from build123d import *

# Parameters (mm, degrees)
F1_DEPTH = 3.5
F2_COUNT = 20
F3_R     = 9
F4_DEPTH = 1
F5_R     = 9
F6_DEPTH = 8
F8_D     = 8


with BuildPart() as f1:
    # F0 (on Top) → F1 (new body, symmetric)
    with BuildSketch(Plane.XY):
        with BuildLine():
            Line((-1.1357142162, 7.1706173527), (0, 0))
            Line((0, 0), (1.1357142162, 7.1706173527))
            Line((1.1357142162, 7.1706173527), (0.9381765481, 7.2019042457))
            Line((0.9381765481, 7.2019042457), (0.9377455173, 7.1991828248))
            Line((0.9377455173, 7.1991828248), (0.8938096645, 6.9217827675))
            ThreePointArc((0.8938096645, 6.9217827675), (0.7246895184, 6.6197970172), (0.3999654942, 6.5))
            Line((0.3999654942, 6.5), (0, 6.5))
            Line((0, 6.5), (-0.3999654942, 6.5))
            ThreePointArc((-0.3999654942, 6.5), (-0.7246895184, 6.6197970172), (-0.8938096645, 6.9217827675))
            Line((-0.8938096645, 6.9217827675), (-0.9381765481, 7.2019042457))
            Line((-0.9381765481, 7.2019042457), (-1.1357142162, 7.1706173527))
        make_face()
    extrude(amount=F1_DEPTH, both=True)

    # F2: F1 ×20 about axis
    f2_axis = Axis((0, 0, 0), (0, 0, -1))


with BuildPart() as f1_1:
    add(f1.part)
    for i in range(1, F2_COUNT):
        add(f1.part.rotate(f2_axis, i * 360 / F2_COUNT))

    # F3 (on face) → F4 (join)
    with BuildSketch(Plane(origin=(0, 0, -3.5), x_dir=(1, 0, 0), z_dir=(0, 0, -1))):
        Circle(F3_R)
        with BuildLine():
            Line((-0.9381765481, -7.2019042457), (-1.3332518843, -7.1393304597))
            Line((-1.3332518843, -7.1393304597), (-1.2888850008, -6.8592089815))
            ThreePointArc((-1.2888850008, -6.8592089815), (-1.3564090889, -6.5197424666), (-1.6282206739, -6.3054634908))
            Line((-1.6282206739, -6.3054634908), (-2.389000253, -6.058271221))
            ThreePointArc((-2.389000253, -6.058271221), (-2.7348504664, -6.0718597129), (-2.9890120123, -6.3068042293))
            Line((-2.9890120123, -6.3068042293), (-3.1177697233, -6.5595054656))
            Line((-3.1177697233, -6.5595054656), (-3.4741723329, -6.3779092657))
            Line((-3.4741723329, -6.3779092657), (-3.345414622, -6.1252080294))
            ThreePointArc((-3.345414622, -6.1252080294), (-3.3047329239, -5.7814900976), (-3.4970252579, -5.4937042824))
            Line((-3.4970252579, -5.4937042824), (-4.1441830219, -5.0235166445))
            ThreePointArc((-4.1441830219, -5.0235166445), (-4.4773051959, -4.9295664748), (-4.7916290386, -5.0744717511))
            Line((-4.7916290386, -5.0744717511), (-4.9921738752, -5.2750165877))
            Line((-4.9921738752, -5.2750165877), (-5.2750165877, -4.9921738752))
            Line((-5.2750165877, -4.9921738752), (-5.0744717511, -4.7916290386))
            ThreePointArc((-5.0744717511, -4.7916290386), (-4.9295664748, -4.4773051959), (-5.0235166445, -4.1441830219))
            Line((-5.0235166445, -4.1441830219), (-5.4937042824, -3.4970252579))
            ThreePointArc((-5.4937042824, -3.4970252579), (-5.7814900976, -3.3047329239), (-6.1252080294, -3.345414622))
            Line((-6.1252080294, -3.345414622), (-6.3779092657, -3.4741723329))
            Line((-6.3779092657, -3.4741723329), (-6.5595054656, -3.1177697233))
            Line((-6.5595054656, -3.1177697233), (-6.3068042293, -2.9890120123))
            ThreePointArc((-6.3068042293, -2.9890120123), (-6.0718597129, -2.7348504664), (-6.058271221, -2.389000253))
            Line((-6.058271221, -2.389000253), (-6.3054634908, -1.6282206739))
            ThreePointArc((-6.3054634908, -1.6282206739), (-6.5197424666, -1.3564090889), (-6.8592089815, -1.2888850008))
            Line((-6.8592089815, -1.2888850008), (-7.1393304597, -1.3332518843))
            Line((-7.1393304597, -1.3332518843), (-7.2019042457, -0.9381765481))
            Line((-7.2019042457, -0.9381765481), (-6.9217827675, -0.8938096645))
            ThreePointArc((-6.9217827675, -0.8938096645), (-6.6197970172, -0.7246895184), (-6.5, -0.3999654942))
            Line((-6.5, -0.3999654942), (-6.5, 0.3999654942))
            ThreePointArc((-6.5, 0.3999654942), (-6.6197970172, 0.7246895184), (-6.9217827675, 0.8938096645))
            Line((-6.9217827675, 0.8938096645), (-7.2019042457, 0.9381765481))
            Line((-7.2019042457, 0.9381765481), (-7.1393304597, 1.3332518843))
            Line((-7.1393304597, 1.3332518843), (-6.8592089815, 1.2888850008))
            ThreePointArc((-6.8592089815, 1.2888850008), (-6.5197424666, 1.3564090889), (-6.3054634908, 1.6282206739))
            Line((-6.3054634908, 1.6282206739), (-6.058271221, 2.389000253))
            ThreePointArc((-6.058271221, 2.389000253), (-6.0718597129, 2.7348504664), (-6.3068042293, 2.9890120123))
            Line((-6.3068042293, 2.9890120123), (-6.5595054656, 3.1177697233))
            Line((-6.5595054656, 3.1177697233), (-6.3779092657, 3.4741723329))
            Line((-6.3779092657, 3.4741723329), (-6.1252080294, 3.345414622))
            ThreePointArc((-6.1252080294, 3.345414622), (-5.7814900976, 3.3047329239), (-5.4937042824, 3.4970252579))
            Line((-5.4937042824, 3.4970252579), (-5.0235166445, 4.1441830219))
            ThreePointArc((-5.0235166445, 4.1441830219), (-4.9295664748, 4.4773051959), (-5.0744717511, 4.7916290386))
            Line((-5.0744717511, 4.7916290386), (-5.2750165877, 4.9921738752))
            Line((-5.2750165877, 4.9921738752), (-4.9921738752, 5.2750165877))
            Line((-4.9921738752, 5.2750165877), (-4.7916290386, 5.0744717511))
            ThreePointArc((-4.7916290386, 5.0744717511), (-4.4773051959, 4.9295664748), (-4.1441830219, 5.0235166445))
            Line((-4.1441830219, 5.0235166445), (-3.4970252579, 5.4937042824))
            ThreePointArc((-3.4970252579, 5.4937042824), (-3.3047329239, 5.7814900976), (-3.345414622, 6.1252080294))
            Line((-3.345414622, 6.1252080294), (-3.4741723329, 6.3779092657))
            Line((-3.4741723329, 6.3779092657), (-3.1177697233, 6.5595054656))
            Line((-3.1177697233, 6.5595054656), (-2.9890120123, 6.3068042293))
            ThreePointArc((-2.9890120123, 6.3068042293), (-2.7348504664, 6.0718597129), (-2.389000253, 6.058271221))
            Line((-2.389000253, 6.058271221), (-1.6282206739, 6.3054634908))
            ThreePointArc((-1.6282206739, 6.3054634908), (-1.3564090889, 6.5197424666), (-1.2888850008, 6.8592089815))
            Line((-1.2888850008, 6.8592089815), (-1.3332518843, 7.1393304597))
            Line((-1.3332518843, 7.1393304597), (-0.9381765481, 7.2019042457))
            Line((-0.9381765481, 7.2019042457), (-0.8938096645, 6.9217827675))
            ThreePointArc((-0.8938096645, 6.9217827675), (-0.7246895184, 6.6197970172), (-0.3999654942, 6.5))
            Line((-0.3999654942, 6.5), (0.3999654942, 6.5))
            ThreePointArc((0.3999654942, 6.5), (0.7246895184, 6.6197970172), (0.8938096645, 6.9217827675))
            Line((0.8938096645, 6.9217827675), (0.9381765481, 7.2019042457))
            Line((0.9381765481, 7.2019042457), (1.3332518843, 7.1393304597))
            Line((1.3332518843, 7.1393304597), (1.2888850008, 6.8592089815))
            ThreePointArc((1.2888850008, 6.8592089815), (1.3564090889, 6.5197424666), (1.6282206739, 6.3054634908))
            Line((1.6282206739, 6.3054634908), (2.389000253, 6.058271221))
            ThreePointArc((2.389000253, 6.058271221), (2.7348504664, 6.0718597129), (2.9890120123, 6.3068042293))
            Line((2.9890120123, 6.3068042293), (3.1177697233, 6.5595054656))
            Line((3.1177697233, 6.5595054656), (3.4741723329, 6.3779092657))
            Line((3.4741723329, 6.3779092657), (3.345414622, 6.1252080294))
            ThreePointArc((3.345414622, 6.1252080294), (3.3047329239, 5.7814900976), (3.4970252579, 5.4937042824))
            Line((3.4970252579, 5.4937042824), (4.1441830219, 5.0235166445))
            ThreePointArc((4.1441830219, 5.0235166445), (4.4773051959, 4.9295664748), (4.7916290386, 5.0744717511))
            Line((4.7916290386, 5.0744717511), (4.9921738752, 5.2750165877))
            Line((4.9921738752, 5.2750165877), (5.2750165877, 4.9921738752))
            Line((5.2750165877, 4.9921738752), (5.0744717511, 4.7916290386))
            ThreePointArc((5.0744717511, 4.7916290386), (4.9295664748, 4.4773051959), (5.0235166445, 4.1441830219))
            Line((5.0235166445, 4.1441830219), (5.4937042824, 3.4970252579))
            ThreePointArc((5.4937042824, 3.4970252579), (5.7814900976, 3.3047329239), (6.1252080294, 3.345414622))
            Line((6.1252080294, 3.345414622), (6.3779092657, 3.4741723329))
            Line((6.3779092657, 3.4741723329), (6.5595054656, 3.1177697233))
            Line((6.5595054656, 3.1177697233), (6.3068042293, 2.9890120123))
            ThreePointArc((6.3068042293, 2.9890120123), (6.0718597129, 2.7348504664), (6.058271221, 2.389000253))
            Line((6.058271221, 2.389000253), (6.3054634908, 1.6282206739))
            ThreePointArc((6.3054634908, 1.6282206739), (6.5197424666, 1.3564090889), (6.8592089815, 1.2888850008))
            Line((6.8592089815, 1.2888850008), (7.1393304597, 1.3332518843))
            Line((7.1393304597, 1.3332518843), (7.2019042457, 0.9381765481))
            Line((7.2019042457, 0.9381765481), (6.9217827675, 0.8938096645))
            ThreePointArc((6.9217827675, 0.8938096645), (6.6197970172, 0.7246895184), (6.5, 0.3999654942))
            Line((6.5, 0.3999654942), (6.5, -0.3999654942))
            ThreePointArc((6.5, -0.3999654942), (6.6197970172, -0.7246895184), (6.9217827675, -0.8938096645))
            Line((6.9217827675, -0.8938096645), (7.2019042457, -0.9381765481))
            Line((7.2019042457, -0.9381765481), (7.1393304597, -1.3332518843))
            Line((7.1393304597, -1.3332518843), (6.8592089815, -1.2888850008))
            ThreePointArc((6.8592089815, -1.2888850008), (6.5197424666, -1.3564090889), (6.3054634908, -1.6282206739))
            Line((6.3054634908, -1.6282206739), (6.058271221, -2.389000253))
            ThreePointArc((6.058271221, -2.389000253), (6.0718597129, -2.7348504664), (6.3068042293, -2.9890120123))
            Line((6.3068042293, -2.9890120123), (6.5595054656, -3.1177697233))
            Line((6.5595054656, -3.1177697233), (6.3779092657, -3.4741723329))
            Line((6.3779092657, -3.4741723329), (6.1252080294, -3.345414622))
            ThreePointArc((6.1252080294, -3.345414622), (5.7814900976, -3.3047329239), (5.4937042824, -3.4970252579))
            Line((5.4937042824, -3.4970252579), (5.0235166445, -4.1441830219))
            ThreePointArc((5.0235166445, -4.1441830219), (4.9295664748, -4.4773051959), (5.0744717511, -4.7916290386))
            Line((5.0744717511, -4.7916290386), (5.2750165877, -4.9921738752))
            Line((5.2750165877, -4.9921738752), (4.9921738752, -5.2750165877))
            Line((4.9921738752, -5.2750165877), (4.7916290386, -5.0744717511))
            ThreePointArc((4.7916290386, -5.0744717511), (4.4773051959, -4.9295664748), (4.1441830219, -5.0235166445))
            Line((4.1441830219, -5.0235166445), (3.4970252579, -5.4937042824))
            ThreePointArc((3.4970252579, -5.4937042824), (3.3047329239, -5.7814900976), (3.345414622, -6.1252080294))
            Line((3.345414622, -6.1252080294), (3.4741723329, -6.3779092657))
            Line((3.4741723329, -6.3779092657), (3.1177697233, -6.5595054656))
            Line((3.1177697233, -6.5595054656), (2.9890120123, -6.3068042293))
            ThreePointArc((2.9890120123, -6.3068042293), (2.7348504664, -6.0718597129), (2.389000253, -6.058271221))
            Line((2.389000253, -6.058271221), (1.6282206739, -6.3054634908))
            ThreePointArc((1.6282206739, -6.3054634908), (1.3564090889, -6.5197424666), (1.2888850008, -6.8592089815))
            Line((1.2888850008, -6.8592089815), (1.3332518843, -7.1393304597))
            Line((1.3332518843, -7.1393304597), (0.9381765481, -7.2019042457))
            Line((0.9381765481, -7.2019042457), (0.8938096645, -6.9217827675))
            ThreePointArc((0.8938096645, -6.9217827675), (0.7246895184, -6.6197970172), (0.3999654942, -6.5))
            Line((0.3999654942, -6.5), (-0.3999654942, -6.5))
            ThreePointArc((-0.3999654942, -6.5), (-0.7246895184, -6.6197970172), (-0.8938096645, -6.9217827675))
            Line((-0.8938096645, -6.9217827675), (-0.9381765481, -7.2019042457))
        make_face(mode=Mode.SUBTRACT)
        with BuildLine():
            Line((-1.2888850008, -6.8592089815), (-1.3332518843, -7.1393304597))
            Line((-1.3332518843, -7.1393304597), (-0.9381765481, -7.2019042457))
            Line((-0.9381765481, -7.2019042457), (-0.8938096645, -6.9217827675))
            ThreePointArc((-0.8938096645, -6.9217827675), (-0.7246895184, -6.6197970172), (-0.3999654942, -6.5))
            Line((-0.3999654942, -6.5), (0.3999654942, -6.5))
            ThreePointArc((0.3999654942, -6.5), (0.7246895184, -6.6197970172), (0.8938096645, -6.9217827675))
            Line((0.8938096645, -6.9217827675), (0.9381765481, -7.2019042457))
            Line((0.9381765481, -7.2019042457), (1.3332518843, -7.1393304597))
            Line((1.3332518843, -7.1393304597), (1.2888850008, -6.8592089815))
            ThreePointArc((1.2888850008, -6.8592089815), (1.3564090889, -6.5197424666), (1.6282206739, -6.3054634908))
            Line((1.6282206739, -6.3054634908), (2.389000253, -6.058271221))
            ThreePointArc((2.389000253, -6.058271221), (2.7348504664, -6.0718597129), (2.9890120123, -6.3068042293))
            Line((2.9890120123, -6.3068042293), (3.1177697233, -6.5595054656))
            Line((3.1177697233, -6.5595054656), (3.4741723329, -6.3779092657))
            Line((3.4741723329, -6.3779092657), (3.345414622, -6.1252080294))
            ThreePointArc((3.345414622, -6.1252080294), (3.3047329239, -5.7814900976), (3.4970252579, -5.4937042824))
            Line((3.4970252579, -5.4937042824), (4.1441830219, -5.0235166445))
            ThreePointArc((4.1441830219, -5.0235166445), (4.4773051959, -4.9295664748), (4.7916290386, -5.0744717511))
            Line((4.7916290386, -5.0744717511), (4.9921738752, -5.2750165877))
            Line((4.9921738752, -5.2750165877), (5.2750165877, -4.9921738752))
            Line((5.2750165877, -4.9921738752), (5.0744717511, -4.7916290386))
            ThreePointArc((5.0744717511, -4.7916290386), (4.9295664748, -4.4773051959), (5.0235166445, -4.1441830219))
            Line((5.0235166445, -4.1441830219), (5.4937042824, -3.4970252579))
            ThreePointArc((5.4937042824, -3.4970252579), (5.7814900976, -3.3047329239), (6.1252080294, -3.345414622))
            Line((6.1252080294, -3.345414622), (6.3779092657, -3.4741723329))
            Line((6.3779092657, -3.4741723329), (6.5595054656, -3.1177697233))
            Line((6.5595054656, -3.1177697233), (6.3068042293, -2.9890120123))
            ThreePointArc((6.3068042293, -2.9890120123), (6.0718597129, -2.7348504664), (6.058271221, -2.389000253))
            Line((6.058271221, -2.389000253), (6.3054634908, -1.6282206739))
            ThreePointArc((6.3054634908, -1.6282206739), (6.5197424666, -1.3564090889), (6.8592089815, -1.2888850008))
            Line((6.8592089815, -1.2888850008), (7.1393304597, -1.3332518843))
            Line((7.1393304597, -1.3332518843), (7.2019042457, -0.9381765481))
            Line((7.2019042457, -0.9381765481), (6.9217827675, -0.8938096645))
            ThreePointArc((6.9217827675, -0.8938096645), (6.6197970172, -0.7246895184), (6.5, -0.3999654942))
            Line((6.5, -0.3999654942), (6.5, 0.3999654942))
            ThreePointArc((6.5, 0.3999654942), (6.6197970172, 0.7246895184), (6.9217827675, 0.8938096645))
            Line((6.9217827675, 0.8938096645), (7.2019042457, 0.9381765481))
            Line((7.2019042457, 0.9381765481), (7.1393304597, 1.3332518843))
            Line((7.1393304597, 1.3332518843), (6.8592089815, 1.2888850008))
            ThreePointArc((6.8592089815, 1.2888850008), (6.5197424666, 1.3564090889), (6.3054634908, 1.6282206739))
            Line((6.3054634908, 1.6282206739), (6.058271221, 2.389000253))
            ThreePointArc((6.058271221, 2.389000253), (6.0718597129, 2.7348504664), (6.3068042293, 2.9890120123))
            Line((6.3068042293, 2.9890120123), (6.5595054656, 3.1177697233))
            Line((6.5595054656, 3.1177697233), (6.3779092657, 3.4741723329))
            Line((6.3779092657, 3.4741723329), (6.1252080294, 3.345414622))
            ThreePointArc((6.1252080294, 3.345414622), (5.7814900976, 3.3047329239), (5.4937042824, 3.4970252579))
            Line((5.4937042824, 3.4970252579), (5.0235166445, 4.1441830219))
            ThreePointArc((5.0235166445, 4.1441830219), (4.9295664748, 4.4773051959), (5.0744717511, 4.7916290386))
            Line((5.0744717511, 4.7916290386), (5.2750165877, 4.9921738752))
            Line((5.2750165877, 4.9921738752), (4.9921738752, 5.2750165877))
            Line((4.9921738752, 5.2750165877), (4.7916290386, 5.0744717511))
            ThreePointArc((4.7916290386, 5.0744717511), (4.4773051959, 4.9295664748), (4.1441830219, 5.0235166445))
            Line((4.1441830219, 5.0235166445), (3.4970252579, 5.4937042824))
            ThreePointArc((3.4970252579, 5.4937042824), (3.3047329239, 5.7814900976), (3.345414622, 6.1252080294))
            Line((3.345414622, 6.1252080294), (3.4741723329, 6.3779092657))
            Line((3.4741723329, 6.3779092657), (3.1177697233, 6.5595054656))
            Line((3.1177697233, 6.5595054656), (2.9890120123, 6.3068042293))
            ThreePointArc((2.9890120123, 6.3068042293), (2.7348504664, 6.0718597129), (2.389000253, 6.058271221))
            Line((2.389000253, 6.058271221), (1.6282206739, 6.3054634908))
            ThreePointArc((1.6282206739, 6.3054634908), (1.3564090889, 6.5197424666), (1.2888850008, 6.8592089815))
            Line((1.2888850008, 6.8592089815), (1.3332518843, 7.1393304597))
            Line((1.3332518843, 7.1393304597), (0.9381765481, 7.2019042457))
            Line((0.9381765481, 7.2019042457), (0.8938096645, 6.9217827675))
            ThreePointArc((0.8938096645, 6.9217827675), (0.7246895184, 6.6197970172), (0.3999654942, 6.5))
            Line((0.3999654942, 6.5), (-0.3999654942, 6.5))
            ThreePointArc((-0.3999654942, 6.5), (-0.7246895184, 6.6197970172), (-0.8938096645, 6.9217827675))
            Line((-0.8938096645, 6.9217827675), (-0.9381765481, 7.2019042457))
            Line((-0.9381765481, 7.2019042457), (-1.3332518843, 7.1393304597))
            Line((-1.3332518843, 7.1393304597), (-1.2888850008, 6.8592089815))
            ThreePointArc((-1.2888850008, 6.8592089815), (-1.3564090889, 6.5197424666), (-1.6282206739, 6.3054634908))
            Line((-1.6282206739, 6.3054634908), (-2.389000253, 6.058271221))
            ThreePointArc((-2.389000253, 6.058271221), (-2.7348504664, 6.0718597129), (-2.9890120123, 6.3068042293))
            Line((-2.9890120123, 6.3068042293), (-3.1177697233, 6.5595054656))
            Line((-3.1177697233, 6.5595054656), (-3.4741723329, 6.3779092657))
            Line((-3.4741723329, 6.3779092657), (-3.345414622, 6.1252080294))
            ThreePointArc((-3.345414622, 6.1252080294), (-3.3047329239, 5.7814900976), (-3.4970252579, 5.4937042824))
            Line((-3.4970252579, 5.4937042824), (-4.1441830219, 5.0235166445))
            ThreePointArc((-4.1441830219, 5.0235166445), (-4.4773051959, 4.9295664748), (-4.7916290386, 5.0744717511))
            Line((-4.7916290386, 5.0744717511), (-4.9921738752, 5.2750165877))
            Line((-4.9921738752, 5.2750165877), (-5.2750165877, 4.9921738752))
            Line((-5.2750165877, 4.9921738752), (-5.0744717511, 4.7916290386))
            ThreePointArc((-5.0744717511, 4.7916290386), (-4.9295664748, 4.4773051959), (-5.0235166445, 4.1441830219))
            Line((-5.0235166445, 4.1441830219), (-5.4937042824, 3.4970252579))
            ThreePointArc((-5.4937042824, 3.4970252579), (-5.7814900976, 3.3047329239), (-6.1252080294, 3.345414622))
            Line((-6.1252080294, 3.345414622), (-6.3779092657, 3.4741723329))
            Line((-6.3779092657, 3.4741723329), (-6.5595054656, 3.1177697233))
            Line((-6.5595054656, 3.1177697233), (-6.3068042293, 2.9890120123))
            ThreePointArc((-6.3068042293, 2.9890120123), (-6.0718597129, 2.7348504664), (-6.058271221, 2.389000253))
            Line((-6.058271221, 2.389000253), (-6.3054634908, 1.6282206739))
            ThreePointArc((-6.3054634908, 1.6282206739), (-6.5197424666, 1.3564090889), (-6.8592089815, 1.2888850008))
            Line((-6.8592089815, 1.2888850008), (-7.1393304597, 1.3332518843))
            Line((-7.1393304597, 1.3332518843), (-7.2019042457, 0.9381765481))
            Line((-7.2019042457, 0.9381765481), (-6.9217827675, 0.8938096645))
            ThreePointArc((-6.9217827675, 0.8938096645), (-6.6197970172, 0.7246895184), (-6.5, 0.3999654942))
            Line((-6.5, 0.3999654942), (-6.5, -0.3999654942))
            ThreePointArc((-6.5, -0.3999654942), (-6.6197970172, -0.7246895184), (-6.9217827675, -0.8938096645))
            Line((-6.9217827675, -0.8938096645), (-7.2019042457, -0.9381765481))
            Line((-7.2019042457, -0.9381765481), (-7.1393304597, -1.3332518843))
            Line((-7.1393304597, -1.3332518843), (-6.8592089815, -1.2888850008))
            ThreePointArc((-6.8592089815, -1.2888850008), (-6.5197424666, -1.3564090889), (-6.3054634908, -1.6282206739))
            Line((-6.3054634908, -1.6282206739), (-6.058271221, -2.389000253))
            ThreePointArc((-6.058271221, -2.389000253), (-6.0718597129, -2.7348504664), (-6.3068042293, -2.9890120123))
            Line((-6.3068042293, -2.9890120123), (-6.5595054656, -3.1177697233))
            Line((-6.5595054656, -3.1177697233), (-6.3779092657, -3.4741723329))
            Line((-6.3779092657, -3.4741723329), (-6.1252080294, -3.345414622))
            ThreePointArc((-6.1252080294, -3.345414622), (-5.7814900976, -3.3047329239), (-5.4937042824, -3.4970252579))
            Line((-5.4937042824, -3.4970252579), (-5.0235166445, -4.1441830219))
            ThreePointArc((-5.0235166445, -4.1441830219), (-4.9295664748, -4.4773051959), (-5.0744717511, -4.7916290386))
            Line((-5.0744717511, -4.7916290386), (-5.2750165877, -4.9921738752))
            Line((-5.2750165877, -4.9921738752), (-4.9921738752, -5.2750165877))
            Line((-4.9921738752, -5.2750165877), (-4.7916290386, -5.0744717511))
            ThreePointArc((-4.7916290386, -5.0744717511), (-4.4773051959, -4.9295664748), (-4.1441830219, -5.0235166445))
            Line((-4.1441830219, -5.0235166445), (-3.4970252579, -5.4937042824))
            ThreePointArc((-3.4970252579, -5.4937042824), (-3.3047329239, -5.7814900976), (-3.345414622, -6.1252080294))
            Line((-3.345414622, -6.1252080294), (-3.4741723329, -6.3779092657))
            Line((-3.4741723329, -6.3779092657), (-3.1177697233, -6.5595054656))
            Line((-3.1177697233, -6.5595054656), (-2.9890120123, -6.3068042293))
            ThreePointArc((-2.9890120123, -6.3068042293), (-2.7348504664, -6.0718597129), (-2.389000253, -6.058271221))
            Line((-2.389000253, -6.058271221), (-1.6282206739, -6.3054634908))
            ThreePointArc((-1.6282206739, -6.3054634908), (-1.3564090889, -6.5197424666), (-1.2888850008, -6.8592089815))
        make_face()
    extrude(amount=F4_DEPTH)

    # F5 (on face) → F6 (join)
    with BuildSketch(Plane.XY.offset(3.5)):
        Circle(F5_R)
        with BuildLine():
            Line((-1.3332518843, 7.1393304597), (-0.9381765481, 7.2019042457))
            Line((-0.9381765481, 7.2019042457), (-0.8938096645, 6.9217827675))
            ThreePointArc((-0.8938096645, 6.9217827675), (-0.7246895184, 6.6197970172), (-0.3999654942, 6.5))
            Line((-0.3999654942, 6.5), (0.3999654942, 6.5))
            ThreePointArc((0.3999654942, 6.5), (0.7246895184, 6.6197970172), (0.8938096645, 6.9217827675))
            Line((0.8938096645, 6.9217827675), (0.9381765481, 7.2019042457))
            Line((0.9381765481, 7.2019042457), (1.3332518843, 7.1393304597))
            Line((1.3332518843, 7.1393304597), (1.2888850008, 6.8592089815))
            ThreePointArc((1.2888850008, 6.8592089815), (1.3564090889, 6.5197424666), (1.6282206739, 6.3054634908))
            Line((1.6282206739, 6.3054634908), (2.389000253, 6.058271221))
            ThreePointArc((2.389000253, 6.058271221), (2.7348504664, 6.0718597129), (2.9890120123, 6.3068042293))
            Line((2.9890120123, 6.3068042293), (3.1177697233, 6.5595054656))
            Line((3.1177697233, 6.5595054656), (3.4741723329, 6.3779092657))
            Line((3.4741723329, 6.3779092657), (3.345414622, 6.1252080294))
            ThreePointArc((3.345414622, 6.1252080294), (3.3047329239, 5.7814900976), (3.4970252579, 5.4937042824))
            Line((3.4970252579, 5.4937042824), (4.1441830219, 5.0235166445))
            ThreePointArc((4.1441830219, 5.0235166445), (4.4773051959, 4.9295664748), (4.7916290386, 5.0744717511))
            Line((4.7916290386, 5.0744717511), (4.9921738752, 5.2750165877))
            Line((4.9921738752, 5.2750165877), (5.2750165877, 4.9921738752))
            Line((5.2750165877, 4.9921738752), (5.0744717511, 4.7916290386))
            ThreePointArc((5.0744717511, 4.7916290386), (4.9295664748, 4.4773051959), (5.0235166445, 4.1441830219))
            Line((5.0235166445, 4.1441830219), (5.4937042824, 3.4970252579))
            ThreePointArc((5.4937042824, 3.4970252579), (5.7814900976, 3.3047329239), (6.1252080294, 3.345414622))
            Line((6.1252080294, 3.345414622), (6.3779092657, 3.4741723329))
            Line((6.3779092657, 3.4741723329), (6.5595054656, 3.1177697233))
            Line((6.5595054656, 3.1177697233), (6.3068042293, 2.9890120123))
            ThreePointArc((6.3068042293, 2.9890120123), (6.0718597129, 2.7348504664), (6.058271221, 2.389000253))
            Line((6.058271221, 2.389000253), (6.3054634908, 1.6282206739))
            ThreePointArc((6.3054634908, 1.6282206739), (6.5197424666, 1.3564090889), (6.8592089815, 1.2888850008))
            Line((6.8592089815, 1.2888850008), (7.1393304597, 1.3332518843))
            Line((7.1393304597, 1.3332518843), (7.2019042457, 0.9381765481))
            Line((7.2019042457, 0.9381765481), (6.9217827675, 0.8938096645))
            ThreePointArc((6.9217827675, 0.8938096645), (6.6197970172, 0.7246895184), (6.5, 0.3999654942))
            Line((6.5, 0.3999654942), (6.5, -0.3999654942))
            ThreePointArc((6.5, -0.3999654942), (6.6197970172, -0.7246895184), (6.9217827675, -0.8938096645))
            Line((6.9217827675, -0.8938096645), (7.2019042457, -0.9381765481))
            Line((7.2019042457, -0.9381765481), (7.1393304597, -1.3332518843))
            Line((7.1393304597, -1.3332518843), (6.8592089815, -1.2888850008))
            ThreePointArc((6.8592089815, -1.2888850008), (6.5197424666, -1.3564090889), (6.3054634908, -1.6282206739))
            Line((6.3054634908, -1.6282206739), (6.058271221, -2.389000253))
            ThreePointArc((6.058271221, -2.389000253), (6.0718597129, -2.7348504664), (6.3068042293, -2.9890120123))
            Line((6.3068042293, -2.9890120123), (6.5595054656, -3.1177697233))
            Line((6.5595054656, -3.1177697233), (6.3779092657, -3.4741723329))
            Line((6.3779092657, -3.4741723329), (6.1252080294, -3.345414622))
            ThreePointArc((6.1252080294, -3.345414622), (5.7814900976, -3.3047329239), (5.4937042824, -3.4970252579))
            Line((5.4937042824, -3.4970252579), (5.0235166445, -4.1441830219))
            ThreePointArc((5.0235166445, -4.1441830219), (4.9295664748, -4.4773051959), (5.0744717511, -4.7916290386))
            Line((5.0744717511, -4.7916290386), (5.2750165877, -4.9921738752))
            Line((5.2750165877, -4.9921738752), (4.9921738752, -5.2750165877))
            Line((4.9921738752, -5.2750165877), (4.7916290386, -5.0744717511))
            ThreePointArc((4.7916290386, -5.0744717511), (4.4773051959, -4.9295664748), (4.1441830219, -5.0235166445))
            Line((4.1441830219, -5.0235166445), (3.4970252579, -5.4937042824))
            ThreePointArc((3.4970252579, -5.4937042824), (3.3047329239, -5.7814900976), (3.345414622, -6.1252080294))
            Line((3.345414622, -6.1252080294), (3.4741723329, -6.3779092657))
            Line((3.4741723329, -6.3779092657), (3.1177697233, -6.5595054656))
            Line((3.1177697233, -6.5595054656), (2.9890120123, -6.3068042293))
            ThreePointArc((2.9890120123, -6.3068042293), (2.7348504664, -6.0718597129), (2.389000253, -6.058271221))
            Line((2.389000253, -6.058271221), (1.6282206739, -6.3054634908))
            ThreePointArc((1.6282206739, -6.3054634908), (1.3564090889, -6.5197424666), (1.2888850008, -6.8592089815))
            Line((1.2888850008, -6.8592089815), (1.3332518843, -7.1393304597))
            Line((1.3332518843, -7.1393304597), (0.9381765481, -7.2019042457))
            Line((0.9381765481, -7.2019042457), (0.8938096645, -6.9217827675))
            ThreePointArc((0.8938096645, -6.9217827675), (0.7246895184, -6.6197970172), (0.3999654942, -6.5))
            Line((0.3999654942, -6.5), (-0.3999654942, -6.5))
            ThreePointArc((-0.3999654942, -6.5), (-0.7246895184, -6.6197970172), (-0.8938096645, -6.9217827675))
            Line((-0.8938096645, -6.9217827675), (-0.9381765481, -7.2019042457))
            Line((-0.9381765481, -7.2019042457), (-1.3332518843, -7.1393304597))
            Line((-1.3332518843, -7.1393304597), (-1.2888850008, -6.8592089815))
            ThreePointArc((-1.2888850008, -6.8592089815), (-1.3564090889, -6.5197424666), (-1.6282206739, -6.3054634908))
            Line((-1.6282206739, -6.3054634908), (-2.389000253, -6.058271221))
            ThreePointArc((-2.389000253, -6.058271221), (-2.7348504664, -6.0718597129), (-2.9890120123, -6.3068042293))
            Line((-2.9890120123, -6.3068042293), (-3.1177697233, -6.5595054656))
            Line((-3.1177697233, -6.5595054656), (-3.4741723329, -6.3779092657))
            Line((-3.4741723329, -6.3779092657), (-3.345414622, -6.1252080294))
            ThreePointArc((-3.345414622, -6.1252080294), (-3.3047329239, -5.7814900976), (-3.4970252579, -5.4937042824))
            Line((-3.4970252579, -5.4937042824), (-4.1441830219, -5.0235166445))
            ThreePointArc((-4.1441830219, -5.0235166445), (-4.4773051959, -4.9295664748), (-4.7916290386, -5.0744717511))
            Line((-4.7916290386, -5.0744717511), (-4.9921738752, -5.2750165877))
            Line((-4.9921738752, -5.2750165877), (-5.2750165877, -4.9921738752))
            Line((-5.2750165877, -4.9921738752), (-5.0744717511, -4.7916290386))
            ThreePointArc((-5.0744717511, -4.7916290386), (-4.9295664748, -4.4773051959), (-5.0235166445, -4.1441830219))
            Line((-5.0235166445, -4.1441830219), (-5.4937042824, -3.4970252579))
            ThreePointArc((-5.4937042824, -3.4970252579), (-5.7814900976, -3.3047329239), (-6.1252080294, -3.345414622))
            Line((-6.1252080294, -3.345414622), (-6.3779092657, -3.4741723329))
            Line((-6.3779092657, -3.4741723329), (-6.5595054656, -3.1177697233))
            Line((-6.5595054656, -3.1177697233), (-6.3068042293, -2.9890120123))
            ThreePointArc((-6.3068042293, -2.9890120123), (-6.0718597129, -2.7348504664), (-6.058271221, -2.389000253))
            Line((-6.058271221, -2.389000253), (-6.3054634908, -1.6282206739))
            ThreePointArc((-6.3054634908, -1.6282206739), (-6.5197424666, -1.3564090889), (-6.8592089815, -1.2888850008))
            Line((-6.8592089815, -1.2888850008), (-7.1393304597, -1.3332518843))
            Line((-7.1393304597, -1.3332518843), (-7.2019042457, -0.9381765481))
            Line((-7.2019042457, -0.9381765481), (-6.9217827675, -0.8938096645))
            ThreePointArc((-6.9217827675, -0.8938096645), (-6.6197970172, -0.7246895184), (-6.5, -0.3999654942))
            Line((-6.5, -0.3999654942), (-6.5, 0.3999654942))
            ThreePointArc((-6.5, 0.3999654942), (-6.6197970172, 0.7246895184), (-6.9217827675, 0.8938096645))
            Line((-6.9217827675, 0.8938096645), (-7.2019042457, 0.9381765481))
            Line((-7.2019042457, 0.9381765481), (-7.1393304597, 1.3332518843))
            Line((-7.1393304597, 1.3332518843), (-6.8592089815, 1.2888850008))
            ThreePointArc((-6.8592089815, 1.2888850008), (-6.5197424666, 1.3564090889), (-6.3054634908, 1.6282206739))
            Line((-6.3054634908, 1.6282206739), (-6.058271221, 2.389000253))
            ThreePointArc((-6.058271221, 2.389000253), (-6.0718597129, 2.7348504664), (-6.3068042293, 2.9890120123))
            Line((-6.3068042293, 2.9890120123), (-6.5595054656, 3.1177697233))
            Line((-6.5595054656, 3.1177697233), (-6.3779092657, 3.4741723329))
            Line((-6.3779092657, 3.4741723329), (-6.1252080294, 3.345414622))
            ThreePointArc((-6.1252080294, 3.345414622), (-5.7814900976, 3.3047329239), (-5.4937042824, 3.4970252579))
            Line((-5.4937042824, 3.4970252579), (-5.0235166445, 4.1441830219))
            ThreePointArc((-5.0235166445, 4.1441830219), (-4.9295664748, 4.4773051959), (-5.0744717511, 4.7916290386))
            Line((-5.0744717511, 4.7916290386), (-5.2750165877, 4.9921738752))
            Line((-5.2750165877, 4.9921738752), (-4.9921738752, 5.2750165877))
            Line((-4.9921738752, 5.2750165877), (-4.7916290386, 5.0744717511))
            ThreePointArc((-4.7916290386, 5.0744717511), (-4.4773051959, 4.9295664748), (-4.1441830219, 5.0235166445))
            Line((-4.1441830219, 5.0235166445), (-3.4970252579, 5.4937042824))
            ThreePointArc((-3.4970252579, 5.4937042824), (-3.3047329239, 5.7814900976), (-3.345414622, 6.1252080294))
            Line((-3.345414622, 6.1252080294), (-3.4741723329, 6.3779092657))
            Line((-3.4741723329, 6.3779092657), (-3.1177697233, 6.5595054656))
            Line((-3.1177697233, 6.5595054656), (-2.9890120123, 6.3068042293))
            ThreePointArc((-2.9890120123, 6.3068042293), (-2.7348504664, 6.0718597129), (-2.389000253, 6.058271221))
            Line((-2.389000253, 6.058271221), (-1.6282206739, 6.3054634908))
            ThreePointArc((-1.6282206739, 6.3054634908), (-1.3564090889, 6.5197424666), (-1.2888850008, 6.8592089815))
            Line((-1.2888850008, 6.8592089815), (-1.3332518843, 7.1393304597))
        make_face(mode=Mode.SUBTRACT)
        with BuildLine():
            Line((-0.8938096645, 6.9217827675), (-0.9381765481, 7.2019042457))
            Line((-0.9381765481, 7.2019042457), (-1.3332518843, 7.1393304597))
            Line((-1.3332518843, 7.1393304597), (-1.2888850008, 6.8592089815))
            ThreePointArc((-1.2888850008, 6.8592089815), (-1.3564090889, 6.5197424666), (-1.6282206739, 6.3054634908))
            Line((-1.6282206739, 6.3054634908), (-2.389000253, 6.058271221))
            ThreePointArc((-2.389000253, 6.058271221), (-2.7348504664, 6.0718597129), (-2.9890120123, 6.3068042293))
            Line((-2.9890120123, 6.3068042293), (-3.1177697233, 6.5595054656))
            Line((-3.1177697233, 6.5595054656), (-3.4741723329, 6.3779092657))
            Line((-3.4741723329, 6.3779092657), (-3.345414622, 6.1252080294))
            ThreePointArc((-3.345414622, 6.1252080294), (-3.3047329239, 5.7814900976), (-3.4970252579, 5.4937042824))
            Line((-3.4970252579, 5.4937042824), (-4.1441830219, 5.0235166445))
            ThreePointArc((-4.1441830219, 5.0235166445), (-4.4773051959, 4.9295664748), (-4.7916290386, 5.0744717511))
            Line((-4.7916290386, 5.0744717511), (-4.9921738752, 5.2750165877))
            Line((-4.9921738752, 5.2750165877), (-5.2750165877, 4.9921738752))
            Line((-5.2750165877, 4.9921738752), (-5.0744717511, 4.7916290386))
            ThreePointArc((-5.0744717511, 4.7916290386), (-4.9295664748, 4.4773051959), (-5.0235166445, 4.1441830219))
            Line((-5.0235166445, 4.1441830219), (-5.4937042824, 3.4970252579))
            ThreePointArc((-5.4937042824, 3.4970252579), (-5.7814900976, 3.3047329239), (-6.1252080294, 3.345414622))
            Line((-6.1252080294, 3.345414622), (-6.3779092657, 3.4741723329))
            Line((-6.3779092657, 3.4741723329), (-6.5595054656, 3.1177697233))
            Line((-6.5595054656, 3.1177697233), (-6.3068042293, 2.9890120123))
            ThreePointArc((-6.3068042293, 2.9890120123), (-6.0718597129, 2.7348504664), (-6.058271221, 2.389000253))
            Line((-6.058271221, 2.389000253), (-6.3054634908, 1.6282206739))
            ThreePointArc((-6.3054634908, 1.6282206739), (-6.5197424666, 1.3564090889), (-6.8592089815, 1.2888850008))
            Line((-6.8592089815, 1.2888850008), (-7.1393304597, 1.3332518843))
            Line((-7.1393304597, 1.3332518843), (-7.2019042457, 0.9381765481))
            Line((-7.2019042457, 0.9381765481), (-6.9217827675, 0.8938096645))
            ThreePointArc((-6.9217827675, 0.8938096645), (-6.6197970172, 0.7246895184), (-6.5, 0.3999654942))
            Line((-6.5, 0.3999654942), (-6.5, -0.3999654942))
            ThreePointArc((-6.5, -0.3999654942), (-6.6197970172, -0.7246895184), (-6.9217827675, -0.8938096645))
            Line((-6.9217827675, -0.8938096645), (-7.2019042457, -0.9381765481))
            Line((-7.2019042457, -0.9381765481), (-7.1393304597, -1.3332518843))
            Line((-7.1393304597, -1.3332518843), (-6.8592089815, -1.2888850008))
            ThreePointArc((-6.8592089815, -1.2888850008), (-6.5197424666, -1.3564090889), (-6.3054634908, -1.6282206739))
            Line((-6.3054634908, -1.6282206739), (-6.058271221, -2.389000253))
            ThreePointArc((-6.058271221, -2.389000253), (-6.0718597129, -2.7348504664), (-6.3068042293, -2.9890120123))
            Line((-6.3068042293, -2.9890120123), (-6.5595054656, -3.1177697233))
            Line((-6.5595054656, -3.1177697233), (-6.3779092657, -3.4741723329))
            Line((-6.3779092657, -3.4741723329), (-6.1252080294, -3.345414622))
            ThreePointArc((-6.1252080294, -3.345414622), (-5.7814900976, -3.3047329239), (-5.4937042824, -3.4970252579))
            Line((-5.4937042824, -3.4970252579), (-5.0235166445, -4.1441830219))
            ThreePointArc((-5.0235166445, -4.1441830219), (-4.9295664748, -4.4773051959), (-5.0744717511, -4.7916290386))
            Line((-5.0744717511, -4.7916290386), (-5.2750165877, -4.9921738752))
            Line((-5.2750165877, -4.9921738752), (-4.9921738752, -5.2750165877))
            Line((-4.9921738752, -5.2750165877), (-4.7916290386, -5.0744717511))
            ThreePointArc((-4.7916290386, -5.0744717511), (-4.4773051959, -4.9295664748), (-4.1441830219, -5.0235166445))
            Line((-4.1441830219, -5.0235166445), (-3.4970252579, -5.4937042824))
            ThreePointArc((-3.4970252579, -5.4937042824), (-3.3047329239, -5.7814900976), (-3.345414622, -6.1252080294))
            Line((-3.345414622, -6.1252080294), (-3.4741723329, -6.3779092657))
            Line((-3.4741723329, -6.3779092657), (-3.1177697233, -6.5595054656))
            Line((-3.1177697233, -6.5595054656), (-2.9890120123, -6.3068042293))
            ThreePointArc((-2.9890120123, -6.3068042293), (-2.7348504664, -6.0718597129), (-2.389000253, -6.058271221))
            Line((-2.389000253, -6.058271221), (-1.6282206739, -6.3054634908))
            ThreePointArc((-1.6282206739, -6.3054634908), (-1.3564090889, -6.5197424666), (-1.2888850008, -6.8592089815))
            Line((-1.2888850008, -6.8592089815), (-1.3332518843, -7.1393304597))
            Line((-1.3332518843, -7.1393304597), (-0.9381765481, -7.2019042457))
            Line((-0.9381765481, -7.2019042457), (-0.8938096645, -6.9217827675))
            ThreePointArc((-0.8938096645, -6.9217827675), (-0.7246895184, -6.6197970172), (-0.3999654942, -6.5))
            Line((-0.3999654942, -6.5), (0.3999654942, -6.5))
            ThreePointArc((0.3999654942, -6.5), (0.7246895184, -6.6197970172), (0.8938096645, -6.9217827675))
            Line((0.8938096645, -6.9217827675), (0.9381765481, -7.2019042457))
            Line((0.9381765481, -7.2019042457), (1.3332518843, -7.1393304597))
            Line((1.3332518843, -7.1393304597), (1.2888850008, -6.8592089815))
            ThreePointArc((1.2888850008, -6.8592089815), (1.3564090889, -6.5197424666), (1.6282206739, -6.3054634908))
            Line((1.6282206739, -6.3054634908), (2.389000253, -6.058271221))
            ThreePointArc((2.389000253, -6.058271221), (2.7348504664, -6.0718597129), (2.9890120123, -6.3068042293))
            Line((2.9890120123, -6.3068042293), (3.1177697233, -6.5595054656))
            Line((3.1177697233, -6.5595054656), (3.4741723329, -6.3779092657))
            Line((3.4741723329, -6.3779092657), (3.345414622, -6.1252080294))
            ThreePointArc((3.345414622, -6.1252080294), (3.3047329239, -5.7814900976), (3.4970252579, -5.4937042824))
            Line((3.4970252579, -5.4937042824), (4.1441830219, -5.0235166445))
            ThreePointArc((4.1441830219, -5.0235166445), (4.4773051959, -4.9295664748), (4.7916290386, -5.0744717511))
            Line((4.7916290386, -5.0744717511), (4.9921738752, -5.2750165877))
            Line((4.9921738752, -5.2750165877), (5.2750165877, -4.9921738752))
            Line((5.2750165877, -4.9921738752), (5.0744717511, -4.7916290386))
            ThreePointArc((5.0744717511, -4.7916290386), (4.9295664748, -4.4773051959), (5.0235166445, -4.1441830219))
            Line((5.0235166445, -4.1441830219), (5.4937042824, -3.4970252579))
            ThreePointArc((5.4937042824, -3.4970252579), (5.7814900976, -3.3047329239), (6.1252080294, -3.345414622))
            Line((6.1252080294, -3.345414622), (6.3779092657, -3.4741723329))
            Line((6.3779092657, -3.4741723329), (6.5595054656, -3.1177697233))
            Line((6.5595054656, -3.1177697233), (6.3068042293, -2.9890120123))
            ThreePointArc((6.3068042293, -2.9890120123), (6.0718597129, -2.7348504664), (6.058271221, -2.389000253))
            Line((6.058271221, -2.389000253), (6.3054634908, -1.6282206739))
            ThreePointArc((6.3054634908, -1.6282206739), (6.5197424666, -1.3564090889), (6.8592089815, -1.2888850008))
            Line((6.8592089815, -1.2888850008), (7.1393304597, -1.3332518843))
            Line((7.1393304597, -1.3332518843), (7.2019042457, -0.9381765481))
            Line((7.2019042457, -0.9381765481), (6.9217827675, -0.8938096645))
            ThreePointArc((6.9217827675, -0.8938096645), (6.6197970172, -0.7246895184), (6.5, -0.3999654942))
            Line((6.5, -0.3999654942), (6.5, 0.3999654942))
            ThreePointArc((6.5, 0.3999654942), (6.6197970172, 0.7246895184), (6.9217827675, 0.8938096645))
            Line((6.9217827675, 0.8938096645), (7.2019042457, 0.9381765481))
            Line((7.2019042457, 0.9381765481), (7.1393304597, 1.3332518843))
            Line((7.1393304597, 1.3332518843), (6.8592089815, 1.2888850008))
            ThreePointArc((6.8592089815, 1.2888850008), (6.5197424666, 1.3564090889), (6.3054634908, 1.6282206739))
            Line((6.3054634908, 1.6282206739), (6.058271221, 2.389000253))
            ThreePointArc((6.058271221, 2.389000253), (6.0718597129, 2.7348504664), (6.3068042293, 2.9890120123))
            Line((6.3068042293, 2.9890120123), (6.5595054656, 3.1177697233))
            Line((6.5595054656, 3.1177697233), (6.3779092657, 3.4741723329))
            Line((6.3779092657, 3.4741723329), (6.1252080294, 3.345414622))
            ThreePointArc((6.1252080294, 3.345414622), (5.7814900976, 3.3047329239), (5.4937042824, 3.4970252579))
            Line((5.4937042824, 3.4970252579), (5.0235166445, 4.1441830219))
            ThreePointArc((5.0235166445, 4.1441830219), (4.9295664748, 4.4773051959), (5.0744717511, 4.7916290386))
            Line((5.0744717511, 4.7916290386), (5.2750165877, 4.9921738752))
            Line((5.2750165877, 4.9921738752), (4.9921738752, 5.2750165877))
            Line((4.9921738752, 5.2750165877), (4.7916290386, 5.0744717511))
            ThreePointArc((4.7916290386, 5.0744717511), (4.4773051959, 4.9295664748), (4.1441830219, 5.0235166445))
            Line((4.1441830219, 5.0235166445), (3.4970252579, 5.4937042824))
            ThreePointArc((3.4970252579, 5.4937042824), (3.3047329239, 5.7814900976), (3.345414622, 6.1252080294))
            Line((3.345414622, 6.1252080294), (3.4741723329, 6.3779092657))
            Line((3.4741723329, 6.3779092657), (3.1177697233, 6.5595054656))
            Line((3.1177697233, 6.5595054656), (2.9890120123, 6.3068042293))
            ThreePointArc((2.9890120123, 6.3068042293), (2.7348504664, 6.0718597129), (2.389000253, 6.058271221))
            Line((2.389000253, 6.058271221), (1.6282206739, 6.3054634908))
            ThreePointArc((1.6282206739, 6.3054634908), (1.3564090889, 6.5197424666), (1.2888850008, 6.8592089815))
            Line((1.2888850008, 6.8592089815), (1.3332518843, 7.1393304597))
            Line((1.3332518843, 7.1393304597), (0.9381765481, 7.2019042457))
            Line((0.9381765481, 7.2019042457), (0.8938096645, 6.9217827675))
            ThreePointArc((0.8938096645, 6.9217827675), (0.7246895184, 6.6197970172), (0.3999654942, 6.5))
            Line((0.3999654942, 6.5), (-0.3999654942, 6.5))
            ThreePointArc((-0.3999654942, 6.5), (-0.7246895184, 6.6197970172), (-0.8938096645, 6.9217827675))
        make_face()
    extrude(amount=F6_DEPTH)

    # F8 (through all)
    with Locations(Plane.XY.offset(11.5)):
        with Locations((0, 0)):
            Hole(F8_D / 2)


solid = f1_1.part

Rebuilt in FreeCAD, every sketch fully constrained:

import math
import FreeCAD as App
import Part
import Sketcher

V = App.Vector
Q = App.Units.Quantity

doc = App.newDocument("Part")
body = doc.addObject("PartDesign::Body", "Body")

# Sketch on XY plane
sketch1 = body.newObject("Sketcher::SketchObject", "Sketch")
sketch1.AttachmentSupport = (doc.getObject("XY_Plane"), [""])
sketch1.MapMode = "FlatFace"
sketch1.addGeometry([
    Part.LineSegment(V(-1.1357, 7.1706, 0), V(0, 0, 0)),  # 0
    Part.LineSegment(V(0, 0, 0), V(1.1357, 7.1706, 0)),  # 1
    Part.LineSegment(V(1.1357, 7.1706, 0), V(0.9382, 7.2019, 0)),  # 2
    Part.LineSegment(V(0.9382, 7.2019, 0), V(0.9377, 7.1992, 0)),  # 3
    Part.LineSegment(V(0.9377, 7.1992, 0), V(0.8938, 6.9218, 0)),  # 4
    Part.ArcOfCircle(Part.Circle(V(0.4, 7, 0), V(0, 0, 1), 0.5), math.radians(-90), math.radians(-9)),  # 5
    Part.LineSegment(V(0.4, 6.5, 0), V(-0.4, 6.5, 0)),  # 6
    Part.ArcOfCircle(Part.Circle(V(-0.4, 7, 0), V(0, 0, 1), 0.5), math.radians(-171), math.radians(-90)),  # 7
    Part.LineSegment(V(-0.8938, 6.9218, 0), V(-0.9382, 7.2019, 0)),  # 8
    Part.LineSegment(V(-0.9382, 7.2019, 0), V(-1.1357, 7.1706, 0)),  # 9
], False)
sketch1.addConstraint([
    Sketcher.Constraint("Coincident", 0, 2, 1, 1),
    Sketcher.Constraint("Coincident", 1, 2, 2, 1),
    Sketcher.Constraint("Coincident", 2, 2, 3, 1),
    Sketcher.Constraint("Coincident", 3, 2, 4, 1),
    Sketcher.Constraint("Tangent", 4, 2, 5, 2),
    Sketcher.Constraint("Tangent", 5, 1, 6, 1),
    Sketcher.Constraint("Tangent", 6, 2, 7, 2),
    Sketcher.Constraint("Tangent", 7, 1, 8, 1),
    Sketcher.Constraint("Coincident", 8, 2, 9, 1),
    Sketcher.Constraint("Coincident", 9, 2, 0, 1),
    Sketcher.Constraint("Horizontal", 6),
    Sketcher.Constraint("Coincident", 0, 2, -1, 1),
    Sketcher.Constraint("Equal", 5, 7),
    Sketcher.Constraint("Symmetric", 4, 2, 7, 1, -2),
    Sketcher.Constraint("Symmetric", 2, 2, 8, 2, -2),
    Sketcher.Constraint("Symmetric", 1, 2, 9, 2, -2),
    Sketcher.Constraint("Perpendicular", 1, 2),
    Sketcher.Constraint("Perpendicular", 2, 4),
    Sketcher.Constraint("Radius", 5, Q("0.5 mm")),
    Sketcher.Constraint("Angle", 0, Q("-81 deg")),
    Sketcher.Constraint("DistanceY", -1, 1, 5, 3, Q("7 mm")),
    Sketcher.Constraint("Distance", 2, Q("0.2 mm")),
    Sketcher.Constraint("Distance", 0, Q("7.26 mm")),
    Sketcher.Constraint("DistanceY", 4, 2, 3, 2, Q("0.2774 mm")),
])
pad1 = body.newObject("PartDesign::Pad", "Pad")
pad1.Profile = sketch1
pad1.Length = 7
pad1.Midplane = True
body2 = doc.addObject("PartDesign::Body", "Body001")
doc.recompute()

body2.BaseFeature = body
doc.recompute()

body3 = doc.addObject("PartDesign::Body", "Body002")
body3.BaseFeature = body
body3.Placement = App.Placement(V(0, 0, 0), App.Rotation(V(0, 0, -1), 18))
boolean = body2.newObject("PartDesign::Boolean", "Boolean")
boolean.Type = "Fuse"
boolean.addObjects([body3])
doc.recompute()

body4 = doc.addObject("PartDesign::Body", "Body003")
body4.BaseFeature = body
body4.Placement = App.Placement(V(0, 0, 0), App.Rotation(V(0, 0, -1), 36))
boolean2 = body2.newObject("PartDesign::Boolean", "Boolean001")
boolean2.Type = "Fuse"
boolean2.addObjects([body4])
doc.recompute()

body5 = doc.addObject("PartDesign::Body", "Body004")
body5.BaseFeature = body
body5.Placement = App.Placement(V(0, 0, 0), App.Rotation(V(0, 0, -1), 54))
boolean3 = body2.newObject("PartDesign::Boolean", "Boolean002")
boolean3.Type = "Fuse"
boolean3.addObjects([body5])
doc.recompute()

body6 = doc.addObject("PartDesign::Body", "Body005")
body6.BaseFeature = body
body6.Placement = App.Placement(V(0, 0, 0), App.Rotation(V(0, 0, -1), 72))
boolean4 = body2.newObject("PartDesign::Boolean", "Boolean003")
boolean4.Type = "Fuse"
boolean4.addObjects([body6])
doc.recompute()

body7 = doc.addObject("PartDesign::Body", "Body006")
body7.BaseFeature = body
body7.Placement = App.Placement(V(0, 0, 0), App.Rotation(V(0, 0, -1), 90))
boolean5 = body2.newObject("PartDesign::Boolean", "Boolean004")
boolean5.Type = "Fuse"
boolean5.addObjects([body7])
doc.recompute()

body8 = doc.addObject("PartDesign::Body", "Body007")
body8.BaseFeature = body
body8.Placement = App.Placement(V(0, 0, 0), App.Rotation(V(0, 0, -1), 108))
boolean6 = body2.newObject("PartDesign::Boolean", "Boolean005")
boolean6.Type = "Fuse"
boolean6.addObjects([body8])
doc.recompute()

body9 = doc.addObject("PartDesign::Body", "Body008")
body9.BaseFeature = body
body9.Placement = App.Placement(V(0, 0, 0), App.Rotation(V(0, 0, -1), 126))
boolean7 = body2.newObject("PartDesign::Boolean", "Boolean006")
boolean7.Type = "Fuse"
boolean7.addObjects([body9])
doc.recompute()

body10 = doc.addObject("PartDesign::Body", "Body009")
body10.BaseFeature = body
body10.Placement = App.Placement(V(0, 0, 0), App.Rotation(V(0, 0, -1), 144))
boolean8 = body2.newObject("PartDesign::Boolean", "Boolean007")
boolean8.Type = "Fuse"
boolean8.addObjects([body10])
doc.recompute()

body11 = doc.addObject("PartDesign::Body", "Body010")
body11.BaseFeature = body
body11.Placement = App.Placement(V(0, 0, 0), App.Rotation(V(0, 0, -1), 162))
boolean9 = body2.newObject("PartDesign::Boolean", "Boolean008")
boolean9.Type = "Fuse"
boolean9.addObjects([body11])
doc.recompute()

body12 = doc.addObject("PartDesign::Body", "Body011")
body12.BaseFeature = body
body12.Placement = App.Placement(V(0, 0, 0), App.Rotation(V(0, 0, -1), 180))
boolean10 = body2.newObject("PartDesign::Boolean", "Boolean009")
boolean10.Type = "Fuse"
boolean10.addObjects([body12])
doc.recompute()

body13 = doc.addObject("PartDesign::Body", "Body012")
body13.BaseFeature = body
body13.Placement = App.Placement(V(0, 0, 0), App.Rotation(V(0, 0, -1), 198))
boolean11 = body2.newObject("PartDesign::Boolean", "Boolean010")
boolean11.Type = "Fuse"
boolean11.addObjects([body13])
doc.recompute()

body14 = doc.addObject("PartDesign::Body", "Body013")
body14.BaseFeature = body
body14.Placement = App.Placement(V(0, 0, 0), App.Rotation(V(0, 0, -1), 216))
boolean12 = body2.newObject("PartDesign::Boolean", "Boolean011")
boolean12.Type = "Fuse"
boolean12.addObjects([body14])
doc.recompute()

body15 = doc.addObject("PartDesign::Body", "Body014")
body15.BaseFeature = body
body15.Placement = App.Placement(V(0, 0, 0), App.Rotation(V(0, 0, -1), 234))
boolean13 = body2.newObject("PartDesign::Boolean", "Boolean012")
boolean13.Type = "Fuse"
boolean13.addObjects([body15])
doc.recompute()

body16 = doc.addObject("PartDesign::Body", "Body015")
body16.BaseFeature = body
body16.Placement = App.Placement(V(0, 0, 0), App.Rotation(V(0, 0, -1), 252))
boolean14 = body2.newObject("PartDesign::Boolean", "Boolean013")
boolean14.Type = "Fuse"
boolean14.addObjects([body16])
doc.recompute()

body17 = doc.addObject("PartDesign::Body", "Body016")
body17.BaseFeature = body
body17.Placement = App.Placement(V(0, 0, 0), App.Rotation(V(0, 0, -1), 270))
boolean15 = body2.newObject("PartDesign::Boolean", "Boolean014")
boolean15.Type = "Fuse"
boolean15.addObjects([body17])
doc.recompute()

body18 = doc.addObject("PartDesign::Body", "Body017")
body18.BaseFeature = body
body18.Placement = App.Placement(V(0, 0, 0), App.Rotation(V(0, 0, -1), 288))
boolean16 = body2.newObject("PartDesign::Boolean", "Boolean015")
boolean16.Type = "Fuse"
boolean16.addObjects([body18])
doc.recompute()

body19 = doc.addObject("PartDesign::Body", "Body018")
body19.BaseFeature = body
body19.Placement = App.Placement(V(0, 0, 0), App.Rotation(V(0, 0, -1), 306))
boolean17 = body2.newObject("PartDesign::Boolean", "Boolean016")
boolean17.Type = "Fuse"
boolean17.addObjects([body19])
doc.recompute()

body20 = doc.addObject("PartDesign::Body", "Body019")
body20.BaseFeature = body
body20.Placement = App.Placement(V(0, 0, 0), App.Rotation(V(0, 0, -1), 324))
boolean18 = body2.newObject("PartDesign::Boolean", "Boolean017")
boolean18.Type = "Fuse"
boolean18.addObjects([body20])
doc.recompute()

body.Placement = App.Placement(V(0, 0, 0), App.Rotation(V(0, 0, -1), 342))
boolean19 = body2.newObject("PartDesign::Boolean", "Boolean018")
boolean19.Type = "Fuse"
boolean19.addObjects([body])

# Sketch on XY plane
sketch2 = body2.newObject("Sketcher::SketchObject", "Sketch001")
sketch2.AttachmentSupport = (doc.getObject("XY_Plane001"), [""])
sketch2.MapMode = "FlatFace"
sketch2.AttachmentOffset = App.Placement(V(0, 0, -3.5), App.Rotation())
sketch2.addGeometry(Part.Circle(V(0, 0, 0), V(0, 0, 1), 9), False)
sketch2.addConstraint([
    Sketcher.Constraint("Coincident", 0, 3, -1, 1),
    Sketcher.Constraint("Diameter", 0, Q("18 mm")),
])
pad2 = body2.newObject("PartDesign::Pad", "Pad001")
pad2.Profile = sketch2
pad2.Length = 1
pad2.Reversed = True

# Sketch on XY plane
sketch3 = body2.newObject("Sketcher::SketchObject", "Sketch002")
sketch3.AttachmentSupport = (doc.getObject("XY_Plane001"), [""])
sketch3.MapMode = "FlatFace"
sketch3.AttachmentOffset = App.Placement(V(0, 0, 3.5), App.Rotation())
sketch3.addGeometry(Part.Circle(V(0, 0, 0), V(0, 0, 1), 9), False)
sketch3.addConstraint([
    Sketcher.Constraint("Coincident", 0, 3, -1, 1),
    Sketcher.Constraint("Diameter", 0, Q("18 mm")),
])
pad3 = body2.newObject("PartDesign::Pad", "Pad002")
pad3.Profile = sketch3
pad3.Length = 8

# Sketch on XY plane
sketch4 = body2.newObject("Sketcher::SketchObject", "Sketch003")
sketch4.AttachmentSupport = (doc.getObject("XY_Plane001"), [""])
sketch4.MapMode = "FlatFace"
sketch4.AttachmentOffset = App.Placement(V(0, 0, 11.5), App.Rotation())
sketch4.addGeometry(Part.Circle(V(0, 0, 0), V(0, 0, 1), 4), False)
sketch4.addConstraint([
    Sketcher.Constraint("Coincident", 0, 3, -1, 1),
    Sketcher.Constraint("Diameter", 0, Q("8 mm")),
])
doc.recompute()
hole = body2.newObject("PartDesign::Hole", "Hole")
hole.Profile = sketch4
hole.ThreadType = "None"
hole.Diameter = 8
hole.DepthType = "ThroughAll"

doc.recompute()
